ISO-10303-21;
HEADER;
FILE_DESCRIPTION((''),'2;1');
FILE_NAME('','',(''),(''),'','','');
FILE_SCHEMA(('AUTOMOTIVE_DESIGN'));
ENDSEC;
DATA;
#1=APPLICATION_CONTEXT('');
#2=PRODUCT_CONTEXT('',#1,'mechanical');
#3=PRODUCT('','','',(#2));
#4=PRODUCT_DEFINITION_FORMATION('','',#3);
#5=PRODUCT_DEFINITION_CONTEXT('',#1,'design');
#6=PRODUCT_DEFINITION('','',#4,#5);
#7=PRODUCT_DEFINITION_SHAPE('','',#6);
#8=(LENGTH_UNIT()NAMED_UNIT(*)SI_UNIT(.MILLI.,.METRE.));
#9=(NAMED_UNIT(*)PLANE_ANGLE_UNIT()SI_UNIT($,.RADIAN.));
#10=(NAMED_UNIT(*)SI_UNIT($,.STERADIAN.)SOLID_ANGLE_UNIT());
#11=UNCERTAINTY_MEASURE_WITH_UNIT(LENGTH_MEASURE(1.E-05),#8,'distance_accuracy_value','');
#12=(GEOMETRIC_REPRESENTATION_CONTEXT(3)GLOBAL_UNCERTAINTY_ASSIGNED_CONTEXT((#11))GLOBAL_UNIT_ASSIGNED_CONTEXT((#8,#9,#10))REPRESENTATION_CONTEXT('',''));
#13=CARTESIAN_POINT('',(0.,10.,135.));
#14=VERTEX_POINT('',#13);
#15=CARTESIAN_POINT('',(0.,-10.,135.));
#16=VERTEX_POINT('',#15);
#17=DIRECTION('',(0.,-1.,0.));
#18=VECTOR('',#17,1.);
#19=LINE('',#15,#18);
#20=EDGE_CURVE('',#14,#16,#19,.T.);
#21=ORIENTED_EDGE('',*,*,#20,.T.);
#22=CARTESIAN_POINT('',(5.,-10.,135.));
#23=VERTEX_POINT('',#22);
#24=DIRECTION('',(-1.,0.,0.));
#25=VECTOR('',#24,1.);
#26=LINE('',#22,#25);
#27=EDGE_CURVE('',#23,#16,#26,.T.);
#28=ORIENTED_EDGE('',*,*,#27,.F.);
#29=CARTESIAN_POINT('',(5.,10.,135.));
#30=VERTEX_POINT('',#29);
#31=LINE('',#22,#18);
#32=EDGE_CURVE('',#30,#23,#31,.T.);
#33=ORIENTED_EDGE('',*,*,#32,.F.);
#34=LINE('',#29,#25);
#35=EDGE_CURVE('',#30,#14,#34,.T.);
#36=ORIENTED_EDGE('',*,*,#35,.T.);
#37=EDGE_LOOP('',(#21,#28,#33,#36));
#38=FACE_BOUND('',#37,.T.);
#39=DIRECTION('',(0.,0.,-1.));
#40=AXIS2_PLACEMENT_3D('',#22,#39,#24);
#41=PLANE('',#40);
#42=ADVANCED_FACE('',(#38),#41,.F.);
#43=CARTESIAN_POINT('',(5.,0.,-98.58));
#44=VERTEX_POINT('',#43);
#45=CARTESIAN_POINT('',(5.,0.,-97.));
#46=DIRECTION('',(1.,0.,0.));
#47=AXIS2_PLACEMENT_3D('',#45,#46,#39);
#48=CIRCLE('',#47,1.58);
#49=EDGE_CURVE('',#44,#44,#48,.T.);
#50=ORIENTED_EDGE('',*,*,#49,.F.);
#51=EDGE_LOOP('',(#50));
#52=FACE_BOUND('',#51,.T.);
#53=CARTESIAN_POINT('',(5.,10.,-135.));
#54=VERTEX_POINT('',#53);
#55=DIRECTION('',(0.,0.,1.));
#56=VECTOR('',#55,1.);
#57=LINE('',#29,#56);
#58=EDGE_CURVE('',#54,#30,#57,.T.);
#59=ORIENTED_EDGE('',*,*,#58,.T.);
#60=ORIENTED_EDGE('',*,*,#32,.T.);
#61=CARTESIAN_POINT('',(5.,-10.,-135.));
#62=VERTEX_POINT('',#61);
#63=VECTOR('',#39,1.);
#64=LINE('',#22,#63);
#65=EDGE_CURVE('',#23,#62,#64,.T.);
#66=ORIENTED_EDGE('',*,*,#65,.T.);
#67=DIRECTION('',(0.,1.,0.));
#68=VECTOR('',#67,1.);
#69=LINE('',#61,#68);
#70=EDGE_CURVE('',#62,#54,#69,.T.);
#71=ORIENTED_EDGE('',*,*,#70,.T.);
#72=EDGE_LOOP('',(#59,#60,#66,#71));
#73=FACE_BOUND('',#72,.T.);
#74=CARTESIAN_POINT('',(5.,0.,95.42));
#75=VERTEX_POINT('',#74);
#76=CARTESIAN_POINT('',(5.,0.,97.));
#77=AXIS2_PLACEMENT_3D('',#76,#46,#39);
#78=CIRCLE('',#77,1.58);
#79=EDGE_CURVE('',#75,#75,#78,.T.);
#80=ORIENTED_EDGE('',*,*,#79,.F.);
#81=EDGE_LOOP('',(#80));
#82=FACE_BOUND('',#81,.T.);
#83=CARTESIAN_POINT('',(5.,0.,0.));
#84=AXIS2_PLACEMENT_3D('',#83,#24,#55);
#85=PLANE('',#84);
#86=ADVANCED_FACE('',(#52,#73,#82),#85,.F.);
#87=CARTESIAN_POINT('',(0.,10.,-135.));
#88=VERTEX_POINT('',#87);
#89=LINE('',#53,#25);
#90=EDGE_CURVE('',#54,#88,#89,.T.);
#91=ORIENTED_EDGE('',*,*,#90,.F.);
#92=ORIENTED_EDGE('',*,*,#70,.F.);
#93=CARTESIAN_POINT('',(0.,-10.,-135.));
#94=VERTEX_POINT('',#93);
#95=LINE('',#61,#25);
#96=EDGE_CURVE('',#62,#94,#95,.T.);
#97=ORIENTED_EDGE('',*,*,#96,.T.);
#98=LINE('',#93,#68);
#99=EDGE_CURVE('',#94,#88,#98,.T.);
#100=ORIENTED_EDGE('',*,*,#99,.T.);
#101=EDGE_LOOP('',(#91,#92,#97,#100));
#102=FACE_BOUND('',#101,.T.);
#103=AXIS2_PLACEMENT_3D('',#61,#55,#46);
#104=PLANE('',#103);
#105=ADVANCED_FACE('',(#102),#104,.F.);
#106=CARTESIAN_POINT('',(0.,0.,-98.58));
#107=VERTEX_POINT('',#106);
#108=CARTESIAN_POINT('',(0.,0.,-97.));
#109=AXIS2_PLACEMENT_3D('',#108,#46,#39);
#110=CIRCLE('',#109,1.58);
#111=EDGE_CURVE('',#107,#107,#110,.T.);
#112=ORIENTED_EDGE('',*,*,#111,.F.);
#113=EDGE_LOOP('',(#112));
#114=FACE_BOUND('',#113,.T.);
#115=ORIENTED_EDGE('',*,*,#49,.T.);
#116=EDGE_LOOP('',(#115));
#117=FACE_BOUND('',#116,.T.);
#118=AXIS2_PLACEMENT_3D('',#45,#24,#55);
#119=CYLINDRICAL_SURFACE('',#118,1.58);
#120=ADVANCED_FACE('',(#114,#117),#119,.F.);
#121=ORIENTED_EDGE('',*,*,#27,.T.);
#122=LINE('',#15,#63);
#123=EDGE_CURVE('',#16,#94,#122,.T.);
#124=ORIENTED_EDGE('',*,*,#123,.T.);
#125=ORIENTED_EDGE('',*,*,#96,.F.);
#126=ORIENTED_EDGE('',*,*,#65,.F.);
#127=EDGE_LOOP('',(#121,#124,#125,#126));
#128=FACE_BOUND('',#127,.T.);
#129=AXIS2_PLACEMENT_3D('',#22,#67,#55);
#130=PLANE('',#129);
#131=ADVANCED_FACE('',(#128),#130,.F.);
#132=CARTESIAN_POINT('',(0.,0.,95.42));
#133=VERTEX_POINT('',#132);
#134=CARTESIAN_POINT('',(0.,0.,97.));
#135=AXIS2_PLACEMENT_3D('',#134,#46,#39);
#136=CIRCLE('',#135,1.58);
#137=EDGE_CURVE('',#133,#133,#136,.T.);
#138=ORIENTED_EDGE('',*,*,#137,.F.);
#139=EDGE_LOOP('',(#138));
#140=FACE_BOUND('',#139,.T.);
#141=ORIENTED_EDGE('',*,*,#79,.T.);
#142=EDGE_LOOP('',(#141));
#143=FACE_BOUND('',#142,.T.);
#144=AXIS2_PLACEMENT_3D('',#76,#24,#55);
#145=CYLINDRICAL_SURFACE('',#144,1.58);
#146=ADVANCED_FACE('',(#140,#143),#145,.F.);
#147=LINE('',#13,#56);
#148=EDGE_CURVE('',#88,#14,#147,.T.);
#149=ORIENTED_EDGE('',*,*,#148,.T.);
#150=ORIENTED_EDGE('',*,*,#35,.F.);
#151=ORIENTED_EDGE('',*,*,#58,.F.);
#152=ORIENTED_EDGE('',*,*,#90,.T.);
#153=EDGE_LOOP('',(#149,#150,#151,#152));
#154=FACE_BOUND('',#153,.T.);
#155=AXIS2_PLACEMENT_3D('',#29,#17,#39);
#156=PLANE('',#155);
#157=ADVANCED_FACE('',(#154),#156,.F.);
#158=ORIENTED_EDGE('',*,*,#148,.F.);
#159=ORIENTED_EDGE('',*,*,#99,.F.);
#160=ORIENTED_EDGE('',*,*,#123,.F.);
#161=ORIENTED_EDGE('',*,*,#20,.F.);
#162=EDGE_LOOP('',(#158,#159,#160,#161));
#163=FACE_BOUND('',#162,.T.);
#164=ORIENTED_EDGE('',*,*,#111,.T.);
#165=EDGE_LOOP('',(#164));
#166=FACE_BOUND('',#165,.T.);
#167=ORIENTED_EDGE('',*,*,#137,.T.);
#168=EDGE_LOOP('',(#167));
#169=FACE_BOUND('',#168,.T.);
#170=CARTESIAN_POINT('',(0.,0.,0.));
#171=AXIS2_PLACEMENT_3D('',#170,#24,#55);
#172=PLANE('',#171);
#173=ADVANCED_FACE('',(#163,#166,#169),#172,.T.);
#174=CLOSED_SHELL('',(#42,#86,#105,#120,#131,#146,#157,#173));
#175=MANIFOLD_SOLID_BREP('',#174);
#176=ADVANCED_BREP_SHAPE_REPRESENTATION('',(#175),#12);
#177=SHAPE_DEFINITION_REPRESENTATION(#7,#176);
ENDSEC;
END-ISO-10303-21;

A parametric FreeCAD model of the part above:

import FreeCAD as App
import Part
import Sketcher
Q = App.Units.Quantity

doc = App.newDocument("Part")
body = doc.addObject("PartDesign::Body", "Body")

sketch1 = body.newObject("Sketcher::SketchObject", "Sketch")
sketch1.AttachmentSupport = (doc.getObject("YZ_Plane"), [""])
sketch1.MapMode = "FlatFace"
sketch1.addGeometry(Part.LineSegment(App.Vector(10, 135, 0), App.Vector(-10, 135, 0)), False)
sketch1.addGeometry(Part.LineSegment(App.Vector(-10, 135, 0), App.Vector(-10, -135, 0)), False)
sketch1.addGeometry(Part.LineSegment(App.Vector(-10, -135, 0), App.Vector(10, -135, 0)), False)
sketch1.addGeometry(Part.LineSegment(App.Vector(10, -135, 0), App.Vector(10, 135, 0)), False)
sketch1.addGeometry(Part.Circle(App.Vector(0, 97, 0), App.Vector(0, 0, 1), 1.58), False)
sketch1.addGeometry(Part.Circle(App.Vector(0, -97, 0), App.Vector(0, 0, 1), 1.58), False)
sketch1.addConstraint(Sketcher.Constraint("Coincident", 0, 2, 1, 1))
sketch1.addConstraint(Sketcher.Constraint("Coincident", 1, 2, 2, 1))
sketch1.addConstraint(Sketcher.Constraint("Coincident", 2, 2, 3, 1))
sketch1.addConstraint(Sketcher.Constraint("Coincident", 3, 2, 0, 1))
sketch1.addConstraint(Sketcher.Constraint("Horizontal", 0))
sketch1.addConstraint(Sketcher.Constraint("Vertical", 1))
sketch1.addConstraint(Sketcher.Constraint("Horizontal", 2))
sketch1.addConstraint(Sketcher.Constraint("Vertical", 3))
sketch1.addConstraint(Sketcher.Constraint("Equal", 4, 5))
sketch1.addConstraint(Sketcher.Constraint("Symmetric", 4, 3, 5, 3, -1, 1))
sketch1.addConstraint(Sketcher.Constraint("Symmetric", 0, 2, 2, 2, -1, 1))
sketch1.addConstraint(Sketcher.Constraint("PointOnObject", 4, 3, -2))
sketch1.addConstraint(Sketcher.Constraint("Diameter", 4, Q("3.16 mm")))
sketch1.addConstraint(Sketcher.Constraint("DistanceX", 0, 2, 0, 1, Q("20 mm")))
sketch1.addConstraint(Sketcher.Constraint("DistanceY", 1, 2, 1, 1, Q("270 mm")))
sketch1.addConstraint(Sketcher.Constraint("DistanceY", -1, 1, 4, 3, Q("97 mm")))
pad1 = body.newObject("PartDesign::Pad", "Pad")
pad1.Profile = sketch1
pad1.Length = 5

doc.recompute()
